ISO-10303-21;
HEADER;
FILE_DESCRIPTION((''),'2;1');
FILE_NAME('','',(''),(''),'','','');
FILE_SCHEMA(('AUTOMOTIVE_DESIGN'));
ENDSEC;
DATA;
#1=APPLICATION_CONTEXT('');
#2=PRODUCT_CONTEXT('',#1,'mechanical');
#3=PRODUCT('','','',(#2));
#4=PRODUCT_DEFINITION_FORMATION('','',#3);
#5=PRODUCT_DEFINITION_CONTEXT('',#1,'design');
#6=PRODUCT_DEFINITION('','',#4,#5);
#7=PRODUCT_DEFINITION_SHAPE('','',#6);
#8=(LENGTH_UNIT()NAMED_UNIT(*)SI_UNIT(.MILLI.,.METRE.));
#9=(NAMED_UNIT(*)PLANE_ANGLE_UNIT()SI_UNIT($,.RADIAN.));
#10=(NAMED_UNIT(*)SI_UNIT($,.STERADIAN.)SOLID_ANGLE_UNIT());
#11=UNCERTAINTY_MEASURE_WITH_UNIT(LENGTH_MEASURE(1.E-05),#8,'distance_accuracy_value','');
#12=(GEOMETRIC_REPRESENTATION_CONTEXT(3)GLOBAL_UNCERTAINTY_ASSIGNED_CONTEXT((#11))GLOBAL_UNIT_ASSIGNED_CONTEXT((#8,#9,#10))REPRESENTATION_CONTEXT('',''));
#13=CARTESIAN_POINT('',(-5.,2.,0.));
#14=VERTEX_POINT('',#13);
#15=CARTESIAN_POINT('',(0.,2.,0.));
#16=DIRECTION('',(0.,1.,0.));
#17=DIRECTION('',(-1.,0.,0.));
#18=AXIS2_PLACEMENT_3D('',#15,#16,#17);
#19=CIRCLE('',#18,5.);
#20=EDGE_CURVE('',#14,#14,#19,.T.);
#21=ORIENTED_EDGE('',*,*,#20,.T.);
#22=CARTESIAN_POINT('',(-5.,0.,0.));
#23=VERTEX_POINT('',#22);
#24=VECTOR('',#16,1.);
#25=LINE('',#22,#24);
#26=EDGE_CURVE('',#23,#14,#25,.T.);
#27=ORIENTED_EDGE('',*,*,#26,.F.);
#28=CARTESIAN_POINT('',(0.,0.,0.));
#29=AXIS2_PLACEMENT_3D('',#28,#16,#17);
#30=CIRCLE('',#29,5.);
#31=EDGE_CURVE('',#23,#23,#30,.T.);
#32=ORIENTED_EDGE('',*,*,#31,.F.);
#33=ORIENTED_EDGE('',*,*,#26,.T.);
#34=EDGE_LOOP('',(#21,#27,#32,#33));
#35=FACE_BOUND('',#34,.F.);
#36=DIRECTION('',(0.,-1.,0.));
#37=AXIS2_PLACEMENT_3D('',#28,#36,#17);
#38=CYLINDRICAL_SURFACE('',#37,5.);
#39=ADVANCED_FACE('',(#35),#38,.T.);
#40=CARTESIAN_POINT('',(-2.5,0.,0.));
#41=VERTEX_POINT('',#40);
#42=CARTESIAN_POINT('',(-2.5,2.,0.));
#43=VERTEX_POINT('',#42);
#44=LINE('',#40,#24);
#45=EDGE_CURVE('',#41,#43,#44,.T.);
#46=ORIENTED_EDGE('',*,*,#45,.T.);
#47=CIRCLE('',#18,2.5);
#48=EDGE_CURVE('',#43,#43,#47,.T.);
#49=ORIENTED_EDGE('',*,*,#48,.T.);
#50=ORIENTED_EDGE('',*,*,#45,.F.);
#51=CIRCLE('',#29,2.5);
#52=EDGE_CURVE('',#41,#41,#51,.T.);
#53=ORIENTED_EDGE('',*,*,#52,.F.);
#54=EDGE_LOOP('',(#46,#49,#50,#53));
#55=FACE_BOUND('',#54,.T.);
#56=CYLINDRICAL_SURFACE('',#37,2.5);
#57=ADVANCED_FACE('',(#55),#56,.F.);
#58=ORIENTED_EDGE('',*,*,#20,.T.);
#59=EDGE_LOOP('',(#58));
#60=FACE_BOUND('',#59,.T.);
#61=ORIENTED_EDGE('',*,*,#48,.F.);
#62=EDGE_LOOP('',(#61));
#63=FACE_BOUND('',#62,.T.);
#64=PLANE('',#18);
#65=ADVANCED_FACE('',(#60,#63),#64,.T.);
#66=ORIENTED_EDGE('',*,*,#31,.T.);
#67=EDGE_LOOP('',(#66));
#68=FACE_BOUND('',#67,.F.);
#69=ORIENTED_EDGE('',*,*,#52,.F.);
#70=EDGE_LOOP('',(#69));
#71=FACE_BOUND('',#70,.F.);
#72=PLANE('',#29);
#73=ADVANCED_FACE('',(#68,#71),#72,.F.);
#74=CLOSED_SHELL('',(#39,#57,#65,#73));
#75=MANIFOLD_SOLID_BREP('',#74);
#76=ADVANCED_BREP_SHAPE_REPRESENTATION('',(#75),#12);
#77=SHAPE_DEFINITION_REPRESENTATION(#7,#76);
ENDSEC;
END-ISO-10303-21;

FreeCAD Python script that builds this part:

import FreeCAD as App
import Part
import Sketcher

V = App.Vector

doc = App.newDocument("Part")
body = doc.addObject("PartDesign::Body", "Body")

sketch1 = doc.addObject("Sketcher::SketchObject", "Sketch")
body.addObject(sketch1)
sketch1.AttachmentSupport = (doc.XZ_Plane, [""])
sketch1.MapMode = "FlatFace"
sketch1.addGeometry([
    Part.Circle(V(0, 0, 0), V(0, 0, 1), 5),
    Part.Circle(V(0, 0, 0), V(0, 0, 1), 2.5),
], False)
sketch1.addConstraint([
    Sketcher.Constraint("Coincident", 0, 3, -1, 1),
    Sketcher.Constraint("Coincident", 1, 3, -1, 1),
    Sketcher.Constraint("Diameter", 0, 10.0),
    Sketcher.Constraint("Diameter", 1, 5.0),
])
pad1 = doc.addObject("PartDesign::Pad", "Pad")
body.addObject(pad1)
pad1.Profile = sketch1
pad1.Length = 2
pad1.Reversed = True

doc.recompute()
